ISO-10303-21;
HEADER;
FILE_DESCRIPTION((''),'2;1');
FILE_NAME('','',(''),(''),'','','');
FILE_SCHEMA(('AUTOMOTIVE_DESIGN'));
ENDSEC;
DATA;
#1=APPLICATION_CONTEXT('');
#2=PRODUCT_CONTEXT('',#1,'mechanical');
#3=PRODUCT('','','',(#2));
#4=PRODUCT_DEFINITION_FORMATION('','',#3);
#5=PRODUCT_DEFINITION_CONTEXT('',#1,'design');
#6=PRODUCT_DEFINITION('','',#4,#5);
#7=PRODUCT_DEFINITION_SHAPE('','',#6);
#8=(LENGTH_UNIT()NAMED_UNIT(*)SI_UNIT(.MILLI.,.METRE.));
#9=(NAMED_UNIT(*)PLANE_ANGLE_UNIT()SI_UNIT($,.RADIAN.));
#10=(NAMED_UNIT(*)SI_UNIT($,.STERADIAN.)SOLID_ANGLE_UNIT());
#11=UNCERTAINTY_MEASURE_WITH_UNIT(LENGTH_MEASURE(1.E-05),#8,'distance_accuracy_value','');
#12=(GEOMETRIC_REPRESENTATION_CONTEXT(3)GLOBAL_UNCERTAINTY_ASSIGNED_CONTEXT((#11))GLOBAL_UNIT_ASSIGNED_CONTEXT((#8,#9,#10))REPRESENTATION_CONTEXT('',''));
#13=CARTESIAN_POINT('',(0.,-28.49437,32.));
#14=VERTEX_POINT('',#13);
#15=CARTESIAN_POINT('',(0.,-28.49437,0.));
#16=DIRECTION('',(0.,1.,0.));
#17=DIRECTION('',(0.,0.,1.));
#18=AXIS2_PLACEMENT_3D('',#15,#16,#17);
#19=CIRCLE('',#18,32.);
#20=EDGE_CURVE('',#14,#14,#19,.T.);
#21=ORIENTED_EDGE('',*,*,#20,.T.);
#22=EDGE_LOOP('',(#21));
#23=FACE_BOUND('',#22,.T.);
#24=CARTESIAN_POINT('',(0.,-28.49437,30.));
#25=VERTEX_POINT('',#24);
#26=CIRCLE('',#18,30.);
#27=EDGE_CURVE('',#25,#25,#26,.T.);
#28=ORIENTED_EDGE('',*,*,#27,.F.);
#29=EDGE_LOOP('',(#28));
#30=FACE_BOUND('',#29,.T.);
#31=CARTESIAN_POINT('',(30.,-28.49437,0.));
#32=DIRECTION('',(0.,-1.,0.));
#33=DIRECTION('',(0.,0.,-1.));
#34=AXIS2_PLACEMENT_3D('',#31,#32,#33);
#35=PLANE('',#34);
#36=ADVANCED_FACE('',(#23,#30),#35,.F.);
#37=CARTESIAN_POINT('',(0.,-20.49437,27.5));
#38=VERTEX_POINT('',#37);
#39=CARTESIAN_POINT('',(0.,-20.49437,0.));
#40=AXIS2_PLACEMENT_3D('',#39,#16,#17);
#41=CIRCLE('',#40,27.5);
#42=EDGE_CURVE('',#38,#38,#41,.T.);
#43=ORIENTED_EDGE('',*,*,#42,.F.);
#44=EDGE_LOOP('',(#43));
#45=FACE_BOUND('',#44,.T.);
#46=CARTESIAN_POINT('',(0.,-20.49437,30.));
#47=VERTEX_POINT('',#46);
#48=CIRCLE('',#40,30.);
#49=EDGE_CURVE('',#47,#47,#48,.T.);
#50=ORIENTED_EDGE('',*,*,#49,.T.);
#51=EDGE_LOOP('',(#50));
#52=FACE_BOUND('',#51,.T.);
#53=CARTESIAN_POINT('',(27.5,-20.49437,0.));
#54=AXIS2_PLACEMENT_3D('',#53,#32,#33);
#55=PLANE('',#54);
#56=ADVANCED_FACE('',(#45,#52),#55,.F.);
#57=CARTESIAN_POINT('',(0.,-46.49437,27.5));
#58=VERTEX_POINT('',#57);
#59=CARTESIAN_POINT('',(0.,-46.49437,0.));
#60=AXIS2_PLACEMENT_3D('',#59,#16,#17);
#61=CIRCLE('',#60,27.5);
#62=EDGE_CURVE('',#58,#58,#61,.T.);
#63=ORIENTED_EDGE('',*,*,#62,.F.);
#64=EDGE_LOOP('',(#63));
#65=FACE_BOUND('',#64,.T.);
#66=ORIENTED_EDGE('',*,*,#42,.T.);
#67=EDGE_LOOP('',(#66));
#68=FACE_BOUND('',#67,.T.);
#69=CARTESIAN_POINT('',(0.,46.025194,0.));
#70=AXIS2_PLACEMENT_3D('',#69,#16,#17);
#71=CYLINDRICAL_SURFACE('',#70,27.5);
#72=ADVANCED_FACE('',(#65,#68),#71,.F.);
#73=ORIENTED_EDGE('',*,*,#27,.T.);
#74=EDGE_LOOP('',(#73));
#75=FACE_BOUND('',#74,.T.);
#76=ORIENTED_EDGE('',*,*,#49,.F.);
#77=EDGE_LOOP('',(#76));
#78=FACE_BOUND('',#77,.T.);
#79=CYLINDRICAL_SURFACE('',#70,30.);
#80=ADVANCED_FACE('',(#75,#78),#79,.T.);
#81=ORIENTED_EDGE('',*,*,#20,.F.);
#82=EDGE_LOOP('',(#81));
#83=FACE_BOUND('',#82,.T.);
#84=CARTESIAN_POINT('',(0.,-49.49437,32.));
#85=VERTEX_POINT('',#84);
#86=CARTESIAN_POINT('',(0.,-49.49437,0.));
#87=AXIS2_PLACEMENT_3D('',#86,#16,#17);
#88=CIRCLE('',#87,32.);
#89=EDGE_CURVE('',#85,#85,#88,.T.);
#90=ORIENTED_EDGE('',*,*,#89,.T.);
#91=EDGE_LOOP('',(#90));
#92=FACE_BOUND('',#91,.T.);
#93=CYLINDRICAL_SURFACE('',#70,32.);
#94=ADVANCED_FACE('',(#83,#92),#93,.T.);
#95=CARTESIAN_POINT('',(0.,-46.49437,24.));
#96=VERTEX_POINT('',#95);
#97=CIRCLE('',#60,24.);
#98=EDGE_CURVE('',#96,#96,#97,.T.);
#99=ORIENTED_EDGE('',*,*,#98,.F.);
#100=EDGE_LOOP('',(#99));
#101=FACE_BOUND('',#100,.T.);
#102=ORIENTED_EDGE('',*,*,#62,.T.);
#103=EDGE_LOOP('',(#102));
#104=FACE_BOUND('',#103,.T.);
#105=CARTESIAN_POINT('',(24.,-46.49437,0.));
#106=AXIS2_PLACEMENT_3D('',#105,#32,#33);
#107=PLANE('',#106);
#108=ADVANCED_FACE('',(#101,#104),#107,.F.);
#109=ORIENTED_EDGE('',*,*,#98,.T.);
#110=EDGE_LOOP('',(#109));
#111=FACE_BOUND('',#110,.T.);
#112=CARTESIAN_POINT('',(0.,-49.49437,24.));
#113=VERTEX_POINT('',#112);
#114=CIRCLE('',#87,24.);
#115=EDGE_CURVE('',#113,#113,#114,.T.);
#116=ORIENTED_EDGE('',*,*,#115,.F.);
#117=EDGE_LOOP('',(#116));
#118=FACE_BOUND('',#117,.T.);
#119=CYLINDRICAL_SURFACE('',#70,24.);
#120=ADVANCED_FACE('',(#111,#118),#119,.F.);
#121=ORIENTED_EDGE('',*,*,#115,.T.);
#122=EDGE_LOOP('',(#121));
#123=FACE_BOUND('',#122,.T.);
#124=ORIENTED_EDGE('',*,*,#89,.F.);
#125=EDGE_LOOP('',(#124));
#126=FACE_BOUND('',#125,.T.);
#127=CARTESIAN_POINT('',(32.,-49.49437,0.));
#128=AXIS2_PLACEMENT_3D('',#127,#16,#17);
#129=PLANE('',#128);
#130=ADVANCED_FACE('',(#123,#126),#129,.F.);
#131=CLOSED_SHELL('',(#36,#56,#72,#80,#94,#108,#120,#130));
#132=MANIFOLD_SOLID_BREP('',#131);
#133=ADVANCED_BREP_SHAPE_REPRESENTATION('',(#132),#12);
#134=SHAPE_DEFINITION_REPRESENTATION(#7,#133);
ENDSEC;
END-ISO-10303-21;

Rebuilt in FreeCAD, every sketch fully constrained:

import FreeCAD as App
import Part
import Sketcher
from FreeCAD import Vector

doc = App.newDocument("Part")
body = doc.addObject("PartDesign::Body", "Body")

# Sketch on XY plane
sketch1 = body.newObject("Sketcher::SketchObject", "Sketch")
sketch1.AttachmentSupport = (doc.getObject("XY_Plane"), [""])
sketch1.MapMode = "FlatFace"
sketch1.addGeometry(Part.LineSegment(Vector(30, -20.49437, 0), Vector(27.5, -20.49437, 0)), False)
sketch1.addGeometry(Part.LineSegment(Vector(27.5, -20.49437, 0), Vector(27.5, -46.49437, 0)), False)
sketch1.addGeometry(Part.LineSegment(Vector(27.5, -46.49437, 0), Vector(24, -46.49437, 0)), False)
sketch1.addGeometry(Part.LineSegment(Vector(24, -46.49437, 0), Vector(24, -49.49437, 0)), False)
sketch1.addGeometry(Part.LineSegment(Vector(24, -49.49437, 0), Vector(32, -49.49437, 0)), False)
sketch1.addGeometry(Part.LineSegment(Vector(32, -49.49437, 0), Vector(32, -28.49437, 0)), False)
sketch1.addGeometry(Part.LineSegment(Vector(32, -28.49437, 0), Vector(30, -28.49437, 0)), False)
sketch1.addGeometry(Part.LineSegment(Vector(30, -28.49437, 0), Vector(30, -20.49437, 0)), False)
sketch1.addConstraint(Sketcher.Constraint("Coincident", 0, 2, 1, 1))
sketch1.addConstraint(Sketcher.Constraint("Coincident", 1, 2, 2, 1))
sketch1.addConstraint(Sketcher.Constraint("Coincident", 2, 2, 3, 1))
sketch1.addConstraint(Sketcher.Constraint("Coincident", 3, 2, 4, 1))
sketch1.addConstraint(Sketcher.Constraint("Coincident", 4, 2, 5, 1))
sketch1.addConstraint(Sketcher.Constraint("Coincident", 5, 2, 6, 1))
sketch1.addConstraint(Sketcher.Constraint("Coincident", 6, 2, 7, 1))
sketch1.addConstraint(Sketcher.Constraint("Coincident", 7, 2, 0, 1))
sketch1.addConstraint(Sketcher.Constraint("Horizontal", 0))
sketch1.addConstraint(Sketcher.Constraint("Vertical", 1))
sketch1.addConstraint(Sketcher.Constraint("Horizontal", 2))
sketch1.addConstraint(Sketcher.Constraint("Vertical", 3))
sketch1.addConstraint(Sketcher.Constraint("Horizontal", 4))
sketch1.addConstraint(Sketcher.Constraint("Vertical", 5))
sketch1.addConstraint(Sketcher.Constraint("Horizontal", 6))
sketch1.addConstraint(Sketcher.Constraint("Vertical", 7))
sketch1.addConstraint(Sketcher.Constraint("Equal", 4, 7))
sketch1.addConstraint(Sketcher.Constraint("DistanceX", 4, 1, 4, 2, 8.0))
sketch1.addConstraint(Sketcher.Constraint("DistanceX", 6, 2, 6, 1, 2.0))
sketch1.addConstraint(Sketcher.Constraint("DistanceY", 1, 2, 1, 1, 26.0))
sketch1.addConstraint(Sketcher.Constraint("DistanceY", 3, 2, 3, 1, 3.0))
sketch1.addConstraint(Sketcher.Constraint("DistanceX", 0, 2, 0, 1, 2.5))
sketch1.addConstraint(Sketcher.Constraint("DistanceX", -1, 1, 2, 2, 24.0))
sketch1.addConstraint(Sketcher.Constraint("DistanceY", 0, 2, -1, 1, 20.49437))
revolution = body.newObject("PartDesign::Revolution", "Revolution")
revolution.Profile = sketch1
revolution.ReferenceAxis = (sketch1, ["V_Axis"])
revolution.Angle = 360

doc.recompute()
